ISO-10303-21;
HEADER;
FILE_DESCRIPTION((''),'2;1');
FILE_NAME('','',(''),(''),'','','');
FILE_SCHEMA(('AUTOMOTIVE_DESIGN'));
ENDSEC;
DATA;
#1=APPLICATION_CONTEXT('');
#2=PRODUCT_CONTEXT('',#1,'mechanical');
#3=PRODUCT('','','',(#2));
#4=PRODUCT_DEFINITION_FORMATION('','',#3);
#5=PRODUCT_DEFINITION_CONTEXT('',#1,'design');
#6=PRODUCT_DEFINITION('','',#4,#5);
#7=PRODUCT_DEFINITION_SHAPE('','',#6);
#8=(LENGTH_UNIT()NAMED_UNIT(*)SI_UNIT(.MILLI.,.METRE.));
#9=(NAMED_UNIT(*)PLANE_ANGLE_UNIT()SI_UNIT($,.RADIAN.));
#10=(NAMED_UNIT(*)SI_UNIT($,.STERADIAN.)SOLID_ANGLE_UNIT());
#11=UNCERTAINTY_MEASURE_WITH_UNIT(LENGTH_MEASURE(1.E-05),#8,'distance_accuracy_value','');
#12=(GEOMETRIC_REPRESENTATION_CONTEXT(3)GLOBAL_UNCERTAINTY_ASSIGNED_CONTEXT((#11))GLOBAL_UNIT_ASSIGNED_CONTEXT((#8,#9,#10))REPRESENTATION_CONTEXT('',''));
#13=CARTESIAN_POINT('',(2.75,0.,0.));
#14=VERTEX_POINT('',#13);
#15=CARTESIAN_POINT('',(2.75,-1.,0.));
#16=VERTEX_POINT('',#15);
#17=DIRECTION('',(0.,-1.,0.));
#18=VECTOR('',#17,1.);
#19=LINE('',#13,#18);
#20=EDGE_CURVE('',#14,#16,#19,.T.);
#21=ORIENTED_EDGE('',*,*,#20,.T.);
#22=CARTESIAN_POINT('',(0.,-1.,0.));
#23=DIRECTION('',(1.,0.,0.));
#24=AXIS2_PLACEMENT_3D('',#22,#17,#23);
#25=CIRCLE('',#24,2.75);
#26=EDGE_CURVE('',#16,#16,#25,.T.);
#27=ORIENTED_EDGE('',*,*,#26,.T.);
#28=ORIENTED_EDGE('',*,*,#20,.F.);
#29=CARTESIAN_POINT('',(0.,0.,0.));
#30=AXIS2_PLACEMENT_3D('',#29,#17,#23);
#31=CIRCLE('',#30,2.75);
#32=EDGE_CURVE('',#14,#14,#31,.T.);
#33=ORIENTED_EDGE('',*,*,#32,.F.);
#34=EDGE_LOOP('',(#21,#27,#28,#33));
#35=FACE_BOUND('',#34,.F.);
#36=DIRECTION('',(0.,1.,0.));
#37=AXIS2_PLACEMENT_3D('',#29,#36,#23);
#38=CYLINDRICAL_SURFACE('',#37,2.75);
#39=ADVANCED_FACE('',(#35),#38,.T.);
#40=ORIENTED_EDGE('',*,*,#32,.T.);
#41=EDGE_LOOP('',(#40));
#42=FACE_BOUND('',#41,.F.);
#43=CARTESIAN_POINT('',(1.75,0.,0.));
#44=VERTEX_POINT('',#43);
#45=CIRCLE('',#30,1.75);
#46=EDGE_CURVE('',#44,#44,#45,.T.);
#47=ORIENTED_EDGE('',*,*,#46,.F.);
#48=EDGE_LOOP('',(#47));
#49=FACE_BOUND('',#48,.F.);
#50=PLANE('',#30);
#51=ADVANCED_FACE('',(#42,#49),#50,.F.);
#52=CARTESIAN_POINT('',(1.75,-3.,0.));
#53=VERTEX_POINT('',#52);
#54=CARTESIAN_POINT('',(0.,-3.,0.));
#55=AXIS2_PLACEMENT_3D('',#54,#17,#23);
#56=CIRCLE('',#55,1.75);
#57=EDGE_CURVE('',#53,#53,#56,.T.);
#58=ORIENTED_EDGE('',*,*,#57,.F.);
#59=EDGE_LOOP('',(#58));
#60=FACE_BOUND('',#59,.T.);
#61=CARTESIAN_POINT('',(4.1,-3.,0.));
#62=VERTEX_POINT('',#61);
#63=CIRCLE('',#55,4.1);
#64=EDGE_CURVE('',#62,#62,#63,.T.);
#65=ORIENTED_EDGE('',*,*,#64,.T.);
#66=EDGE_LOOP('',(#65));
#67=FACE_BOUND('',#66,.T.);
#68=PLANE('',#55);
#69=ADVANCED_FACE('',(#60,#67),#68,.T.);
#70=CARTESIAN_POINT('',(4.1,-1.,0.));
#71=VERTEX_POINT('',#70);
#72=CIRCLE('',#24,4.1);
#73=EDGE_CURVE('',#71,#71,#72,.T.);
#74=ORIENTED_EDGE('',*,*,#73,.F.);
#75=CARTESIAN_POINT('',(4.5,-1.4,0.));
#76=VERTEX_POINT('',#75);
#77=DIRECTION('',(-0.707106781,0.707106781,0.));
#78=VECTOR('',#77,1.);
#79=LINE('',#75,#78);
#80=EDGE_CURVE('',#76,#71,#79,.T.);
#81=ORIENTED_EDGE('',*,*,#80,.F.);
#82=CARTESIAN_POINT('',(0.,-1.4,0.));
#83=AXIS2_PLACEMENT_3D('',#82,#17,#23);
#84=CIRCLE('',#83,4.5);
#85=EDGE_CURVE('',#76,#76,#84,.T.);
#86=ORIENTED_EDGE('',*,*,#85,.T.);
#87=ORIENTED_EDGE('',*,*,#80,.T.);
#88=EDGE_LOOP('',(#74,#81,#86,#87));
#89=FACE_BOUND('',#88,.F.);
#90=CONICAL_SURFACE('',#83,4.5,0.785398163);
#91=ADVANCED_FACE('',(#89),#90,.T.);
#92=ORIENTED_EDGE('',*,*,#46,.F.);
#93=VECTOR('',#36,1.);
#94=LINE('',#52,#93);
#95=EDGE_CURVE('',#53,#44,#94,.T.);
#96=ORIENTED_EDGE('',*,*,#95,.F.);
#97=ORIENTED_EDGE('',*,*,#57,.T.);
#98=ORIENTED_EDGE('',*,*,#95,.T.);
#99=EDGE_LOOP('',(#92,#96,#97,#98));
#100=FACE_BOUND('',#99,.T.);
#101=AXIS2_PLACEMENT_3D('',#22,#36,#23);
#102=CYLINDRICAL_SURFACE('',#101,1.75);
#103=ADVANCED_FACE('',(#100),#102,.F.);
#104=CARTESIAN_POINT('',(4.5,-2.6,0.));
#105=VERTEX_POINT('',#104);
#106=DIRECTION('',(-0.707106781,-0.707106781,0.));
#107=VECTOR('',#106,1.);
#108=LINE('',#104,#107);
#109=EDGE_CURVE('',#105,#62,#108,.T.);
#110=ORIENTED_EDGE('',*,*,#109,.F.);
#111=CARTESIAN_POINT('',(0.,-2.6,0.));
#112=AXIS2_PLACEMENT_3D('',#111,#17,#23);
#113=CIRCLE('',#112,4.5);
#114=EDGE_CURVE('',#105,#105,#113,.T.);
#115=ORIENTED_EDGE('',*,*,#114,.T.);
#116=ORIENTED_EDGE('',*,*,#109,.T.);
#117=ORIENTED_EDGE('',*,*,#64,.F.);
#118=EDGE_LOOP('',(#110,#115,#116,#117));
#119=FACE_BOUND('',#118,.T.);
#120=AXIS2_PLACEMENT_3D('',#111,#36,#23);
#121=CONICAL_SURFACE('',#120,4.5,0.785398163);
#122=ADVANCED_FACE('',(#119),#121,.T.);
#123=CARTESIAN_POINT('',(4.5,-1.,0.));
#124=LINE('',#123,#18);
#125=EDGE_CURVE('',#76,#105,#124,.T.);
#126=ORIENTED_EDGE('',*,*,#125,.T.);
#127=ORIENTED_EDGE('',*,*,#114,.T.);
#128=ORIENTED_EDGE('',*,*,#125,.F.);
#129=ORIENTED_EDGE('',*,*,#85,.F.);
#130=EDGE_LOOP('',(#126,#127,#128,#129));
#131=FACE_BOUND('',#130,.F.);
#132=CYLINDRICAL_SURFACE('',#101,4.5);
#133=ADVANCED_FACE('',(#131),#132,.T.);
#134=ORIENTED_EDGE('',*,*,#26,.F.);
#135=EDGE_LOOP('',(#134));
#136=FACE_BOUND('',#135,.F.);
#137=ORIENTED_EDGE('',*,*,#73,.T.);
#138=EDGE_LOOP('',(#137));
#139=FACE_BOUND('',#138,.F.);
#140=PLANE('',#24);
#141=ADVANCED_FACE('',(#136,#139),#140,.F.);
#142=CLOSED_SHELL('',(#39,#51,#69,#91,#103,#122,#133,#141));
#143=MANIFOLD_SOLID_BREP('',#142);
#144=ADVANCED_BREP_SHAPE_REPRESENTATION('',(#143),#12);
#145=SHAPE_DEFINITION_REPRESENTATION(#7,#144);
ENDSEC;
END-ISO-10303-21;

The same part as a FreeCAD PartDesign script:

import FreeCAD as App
import Part
import Sketcher
Q = App.Units.Quantity


def edges_at(feature, points):
    """Names of the edges that pass closest to the given points."""
    edges = feature.Shape.Edges
    near = lambda p: min(range(len(edges)), key=lambda i: edges[i].distToShape(Part.Vertex(*p))[0])
    return sorted({f"Edge{near(p) + 1}" for p in points})

doc = App.newDocument("Part")
body = doc.addObject("PartDesign::Body", "Body")

sketch1 = body.newObject("Sketcher::SketchObject", "Sketch")
sketch1.AttachmentSupport = (doc.getObject("XZ_Plane"), [""])
sketch1.MapMode = "FlatFace"
sketch1.addGeometry([
    Part.Circle(App.Vector(0, 0, 0), App.Vector(0, 0, 1), 2.75),
    Part.Circle(App.Vector(0, 0, 0), App.Vector(0, 0, 1), 1.75),
], False)
sketch1.addConstraint([
    Sketcher.Constraint("Coincident", 0, 3, -1, 1),
    Sketcher.Constraint("Coincident", 1, 3, -1, 1),
    Sketcher.Constraint("Diameter", 0, Q("5.5 mm")),
    Sketcher.Constraint("Diameter", 1, Q("3.5 mm")),
])
pad1 = body.newObject("PartDesign::Pad", "Pad")
pad1.Profile = sketch1
pad1.Length = 1

sketch2 = body.newObject("Sketcher::SketchObject", "Sketch001")
sketch2.AttachmentSupport = (doc.getObject("XZ_Plane"), [""])
sketch2.MapMode = "FlatFace"
sketch2.AttachmentOffset = App.Placement(App.Vector(0, 0, 1), App.Rotation())
sketch2.addGeometry([
    Part.Circle(App.Vector(0, 0, 0), App.Vector(0, 0, 1), 4.5),
    Part.Circle(App.Vector(0, 0, 0), App.Vector(0, 0, 1), 1.75),
], False)
sketch2.addConstraint([
    Sketcher.Constraint("Coincident", 0, 3, -1, 1),
    Sketcher.Constraint("Coincident", 1, 3, -1, 1),
    Sketcher.Constraint("Diameter", 0, Q("9 mm")),
    Sketcher.Constraint("Diameter", 1, Q("3.5 mm")),
])
pad2 = body.newObject("PartDesign::Pad", "Pad001")
pad2.Profile = sketch2
pad2.Length = 2
doc.recompute()

chamfer = body.newObject("PartDesign::Chamfer", "Chamfer")
chamfer.Base = (pad2, edges_at(pad2, [(-4.5, -3, 0), (-4.5, -1, 0)]))
chamfer.Size = 0.4

doc.recompute()
